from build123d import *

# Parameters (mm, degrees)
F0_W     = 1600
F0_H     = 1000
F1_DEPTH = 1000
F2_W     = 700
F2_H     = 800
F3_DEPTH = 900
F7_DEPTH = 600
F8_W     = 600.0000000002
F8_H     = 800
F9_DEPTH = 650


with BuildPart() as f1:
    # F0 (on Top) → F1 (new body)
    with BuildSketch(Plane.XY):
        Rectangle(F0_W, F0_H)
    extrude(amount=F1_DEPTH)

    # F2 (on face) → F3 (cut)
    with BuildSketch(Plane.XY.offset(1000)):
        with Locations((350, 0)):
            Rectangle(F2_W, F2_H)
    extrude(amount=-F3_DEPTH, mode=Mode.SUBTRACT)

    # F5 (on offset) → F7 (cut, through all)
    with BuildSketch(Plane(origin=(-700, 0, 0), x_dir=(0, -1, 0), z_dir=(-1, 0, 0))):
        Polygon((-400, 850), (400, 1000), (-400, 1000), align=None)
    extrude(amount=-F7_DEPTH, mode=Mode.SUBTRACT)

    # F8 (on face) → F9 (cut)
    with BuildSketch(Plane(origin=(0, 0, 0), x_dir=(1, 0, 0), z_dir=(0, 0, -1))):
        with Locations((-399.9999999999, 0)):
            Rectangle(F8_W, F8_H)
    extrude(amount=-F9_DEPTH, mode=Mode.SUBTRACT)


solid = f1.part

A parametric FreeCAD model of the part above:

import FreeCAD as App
import Part
import Sketcher

V = App.Vector
Q = App.Units.Quantity

doc = App.newDocument("Part")
body = doc.addObject("PartDesign::Body", "Body")

# Sketch on XY plane
sketch1 = doc.addObject("Sketcher::SketchObject", "Sketch")
body.addObject(sketch1)
sketch1.AttachmentSupport = (doc.XY_Plane, [""])
sketch1.MapMode = "FlatFace"
sketch1.addGeometry(Part.LineSegment(V(-800, 500, 0), V(-800, -500, 0)), False)
sketch1.addGeometry(Part.LineSegment(V(-800, -500, 0), V(800, -500, 0)), False)
sketch1.addGeometry(Part.LineSegment(V(800, -500, 0), V(800, 500, 0)), False)
sketch1.addGeometry(Part.LineSegment(V(800, 500, 0), V(-800, 500, 0)), False)
sketch1.addConstraint(Sketcher.Constraint("Coincident", 0, 2, 1, 1))
sketch1.addConstraint(Sketcher.Constraint("Coincident", 1, 2, 2, 1))
sketch1.addConstraint(Sketcher.Constraint("Coincident", 2, 2, 3, 1))
sketch1.addConstraint(Sketcher.Constraint("Coincident", 3, 2, 0, 1))
sketch1.addConstraint(Sketcher.Constraint("Vertical", 0))
sketch1.addConstraint(Sketcher.Constraint("Horizontal", 1))
sketch1.addConstraint(Sketcher.Constraint("Vertical", 2))
sketch1.addConstraint(Sketcher.Constraint("Horizontal", 3))
sketch1.addConstraint(Sketcher.Constraint("Symmetric", 0, 2, 2, 2, -1, 1))
sketch1.addConstraint(Sketcher.Constraint("DistanceX", 1, 1, 1, 2, Q("1600 mm")))
sketch1.addConstraint(Sketcher.Constraint("DistanceY", 0, 2, 0, 1, Q("1000 mm")))
pad1 = doc.addObject("PartDesign::Pad", "Pad")
body.addObject(pad1)
pad1.Profile = sketch1
pad1.Length = 1000

# Sketch on XY plane
sketch2 = doc.addObject("Sketcher::SketchObject", "Sketch001")
body.addObject(sketch2)
sketch2.AttachmentSupport = (doc.XY_Plane, [""])
sketch2.MapMode = "FlatFace"
sketch2.AttachmentOffset = App.Placement(V(0, 0, 1000), App.Rotation())
sketch2.addGeometry(Part.LineSegment(V(0, 400, 0), V(0, -400, 0)), False)
sketch2.addGeometry(Part.LineSegment(V(0, -400, 0), V(700, -400, 0)), False)
sketch2.addGeometry(Part.LineSegment(V(700, -400, 0), V(700, 400, 0)), False)
sketch2.addGeometry(Part.LineSegment(V(700, 400, 0), V(0, 400, 0)), False)
sketch2.addConstraint(Sketcher.Constraint("Coincident", 0, 2, 1, 1))
sketch2.addConstraint(Sketcher.Constraint("Coincident", 1, 2, 2, 1))
sketch2.addConstraint(Sketcher.Constraint("Coincident", 2, 2, 3, 1))
sketch2.addConstraint(Sketcher.Constraint("Coincident", 3, 2, 0, 1))
sketch2.addConstraint(Sketcher.Constraint("Vertical", 0))
sketch2.addConstraint(Sketcher.Constraint("Horizontal", 1))
sketch2.addConstraint(Sketcher.Constraint("Vertical", 2))
sketch2.addConstraint(Sketcher.Constraint("Horizontal", 3))
sketch2.addConstraint(Sketcher.Constraint("Symmetric", 0, 2, 3, 2, -1, 1))
sketch2.addConstraint(Sketcher.Constraint("DistanceX", 1, 1, 1, 2, Q("700 mm")))
sketch2.addConstraint(Sketcher.Constraint("DistanceY", 0, 2, 0, 1, Q("800 mm")))
pocket1 = doc.addObject("PartDesign::Pocket", "Pocket")
body.addObject(pocket1)
pocket1.Profile = sketch2
pocket1.Length = 900

# Sketch on YZ plane
sketch3 = doc.addObject("Sketcher::SketchObject", "Sketch002")
body.addObject(sketch3)
sketch3.AttachmentSupport = (doc.YZ_Plane, [""])
sketch3.MapMode = "FlatFace"
sketch3.AttachmentOffset = App.Placement(V(0, 0, -700), App.Rotation())
sketch3.addGeometry(Part.LineSegment(V(400, 850, 0), V(-400, 1000, 0)), False)
sketch3.addGeometry(Part.LineSegment(V(-400, 1000, 0), V(400, 1000, 0)), False)
sketch3.addGeometry(Part.LineSegment(V(400, 1000, 0), V(400, 850, 0)), False)
sketch3.addConstraint(Sketcher.Constraint("Coincident", 0, 2, 1, 1))
sketch3.addConstraint(Sketcher.Constraint("Coincident", 1, 2, 2, 1))
sketch3.addConstraint(Sketcher.Constraint("Coincident", 2, 2, 0, 1))
sketch3.addConstraint(Sketcher.Constraint("Horizontal", 1))
sketch3.addConstraint(Sketcher.Constraint("Vertical", 2))
sketch3.addConstraint(Sketcher.Constraint("DistanceX", 1, 1, 1, 2, Q("800 mm")))
sketch3.addConstraint(Sketcher.Constraint("DistanceY", 2, 2, 2, 1, Q("150 mm")))
sketch3.addConstraint(Sketcher.Constraint("DistanceX", 0, 2, -1, 1, Q("400 mm")))
sketch3.addConstraint(Sketcher.Constraint("DistanceY", -1, 1, 0, 2, Q("1000 mm")))
pocket2 = doc.addObject("PartDesign::Pocket", "Pocket001")
body.addObject(pocket2)
pocket2.Profile = sketch3
pocket2.Length = 600
pocket2.Reversed = True

# Sketch on XY plane
sketch4 = doc.addObject("Sketcher::SketchObject", "Sketch003")
body.addObject(sketch4)
sketch4.AttachmentSupport = (doc.XY_Plane, [""])
sketch4.MapMode = "FlatFace"
sketch4.addGeometry(Part.LineSegment(V(-700, -400, 0), V(-700, 400, 0)), False)
sketch4.addGeometry(Part.LineSegment(V(-700, 400, 0), V(-100, 400, 0)), False)
sketch4.addGeometry(Part.LineSegment(V(-100, 400, 0), V(-100, -400, 0)), False)
sketch4.addGeometry(Part.LineSegment(V(-100, -400, 0), V(-700, -400, 0)), False)
sketch4.addConstraint(Sketcher.Constraint("Coincident", 0, 2, 1, 1))
sketch4.addConstraint(Sketcher.Constraint("Coincident", 1, 2, 2, 1))
sketch4.addConstraint(Sketcher.Constraint("Coincident", 2, 2, 3, 1))
sketch4.addConstraint(Sketcher.Constraint("Coincident", 3, 2, 0, 1))
sketch4.addConstraint(Sketcher.Constraint("Vertical", 0))
sketch4.addConstraint(Sketcher.Constraint("Horizontal", 1))
sketch4.addConstraint(Sketcher.Constraint("Vertical", 2))
sketch4.addConstraint(Sketcher.Constraint("Horizontal", 3))
sketch4.addConstraint(Sketcher.Constraint("DistanceX", 1, 1, 1, 2, Q("600 mm")))
sketch4.addConstraint(Sketcher.Constraint("DistanceY", 0, 1, 0, 2, Q("800 mm")))
sketch4.addConstraint(Sketcher.Constraint("DistanceX", 0, 2, -1, 1, Q("700 mm")))
sketch4.addConstraint(Sketcher.Constraint("DistanceY", -1, 1, 0, 2, Q("400 mm")))
pocket3 = doc.addObject("PartDesign::Pocket", "Pocket002")
body.addObject(pocket3)
pocket3.Profile = sketch4
pocket3.Length = 650
pocket3.Reversed = True

doc.recompute()
